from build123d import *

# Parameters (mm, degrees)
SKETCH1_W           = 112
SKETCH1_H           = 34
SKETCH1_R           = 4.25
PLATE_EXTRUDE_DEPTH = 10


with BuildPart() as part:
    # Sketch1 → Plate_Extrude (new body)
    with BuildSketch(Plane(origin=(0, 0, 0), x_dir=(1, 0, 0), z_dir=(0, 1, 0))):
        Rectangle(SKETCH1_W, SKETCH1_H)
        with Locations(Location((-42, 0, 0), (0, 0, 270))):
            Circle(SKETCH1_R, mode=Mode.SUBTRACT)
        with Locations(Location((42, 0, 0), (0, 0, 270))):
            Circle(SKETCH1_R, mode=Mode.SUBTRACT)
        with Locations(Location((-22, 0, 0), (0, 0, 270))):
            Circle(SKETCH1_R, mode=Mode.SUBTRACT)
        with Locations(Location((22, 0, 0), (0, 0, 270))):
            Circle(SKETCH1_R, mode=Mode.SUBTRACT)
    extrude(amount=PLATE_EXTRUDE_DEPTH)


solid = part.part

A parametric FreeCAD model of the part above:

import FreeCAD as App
import Part
import Sketcher

V = App.Vector
Q = App.Units.Quantity


def add_polygon(sketch, points):
    """Adds a closed chain of lines whose ends are joined by coincident constraints."""
    first, n = sketch.GeometryCount, len(points)
    for a, b in zip(points, points[1:] + points[:1]):
        sketch.addGeometry(Part.LineSegment(App.Vector(*a, 0), App.Vector(*b, 0)), False)
    for i in range(n):
        sketch.addConstraint(Sketcher.Constraint("Coincident", first + i, 2, first + (i + 1) % n, 1))

doc = App.newDocument("Part")
body = doc.addObject("PartDesign::Body", "Body")

sketch1 = body.newObject("Sketcher::SketchObject", "Sketch")
sketch1.AttachmentSupport = (doc.getObject("XZ_Plane"), [""])
sketch1.MapMode = "FlatFace"
add_polygon(sketch1, [(-56, -17), (-56, 17), (56, 17), (56, -17)])
sketch1.addGeometry(Part.Circle(V(-42, 0, 0), V(0, 0, 1), 4.2), False)
sketch1.addGeometry(Part.Circle(V(-22, 0, 0), V(0, 0, 1), 4.2), False)
sketch1.addGeometry(Part.Circle(V(22, 0, 0), V(0, 0, 1), 4.2), False)
sketch1.addGeometry(Part.Circle(V(42, 0, 0), V(0, 0, 1), 4.2), False)
sketch1.addConstraint([
    Sketcher.Constraint("Vertical", 0),
    Sketcher.Constraint("Horizontal", 1),
    Sketcher.Constraint("Vertical", 2),
    Sketcher.Constraint("Horizontal", 3),
    Sketcher.Constraint("Equal", 4, 5),
    Sketcher.Constraint("Equal", 5, 6),
    Sketcher.Constraint("Equal", 6, 7),
    Sketcher.Constraint("Symmetric", 5, 3, 6, 3, -1, 1),
    Sketcher.Constraint("Symmetric", 4, 3, 7, 3, -1, 1),
    Sketcher.Constraint("Symmetric", 0, 2, 2, 2, -1, 1),
    Sketcher.Constraint("PointOnObject", 4, 3, -1),
    Sketcher.Constraint("PointOnObject", 5, 3, -1),
    Sketcher.Constraint("Diameter", 4, Q("8.5 mm")),
    Sketcher.Constraint("DistanceX", 1, 1, 1, 2, Q("112 mm")),
    Sketcher.Constraint("DistanceY", 0, 1, 0, 2, Q("34 mm")),
    Sketcher.Constraint("DistanceX", 4, 3, -1, 1, Q("42 mm")),
    Sketcher.Constraint("DistanceX", 5, 3, -1, 1, Q("22 mm")),
])
pad1 = body.newObject("PartDesign::Pad", "Pad")
pad1.Profile = sketch1
pad1.Length = 10
pad1.Reversed = True

doc.recompute()
